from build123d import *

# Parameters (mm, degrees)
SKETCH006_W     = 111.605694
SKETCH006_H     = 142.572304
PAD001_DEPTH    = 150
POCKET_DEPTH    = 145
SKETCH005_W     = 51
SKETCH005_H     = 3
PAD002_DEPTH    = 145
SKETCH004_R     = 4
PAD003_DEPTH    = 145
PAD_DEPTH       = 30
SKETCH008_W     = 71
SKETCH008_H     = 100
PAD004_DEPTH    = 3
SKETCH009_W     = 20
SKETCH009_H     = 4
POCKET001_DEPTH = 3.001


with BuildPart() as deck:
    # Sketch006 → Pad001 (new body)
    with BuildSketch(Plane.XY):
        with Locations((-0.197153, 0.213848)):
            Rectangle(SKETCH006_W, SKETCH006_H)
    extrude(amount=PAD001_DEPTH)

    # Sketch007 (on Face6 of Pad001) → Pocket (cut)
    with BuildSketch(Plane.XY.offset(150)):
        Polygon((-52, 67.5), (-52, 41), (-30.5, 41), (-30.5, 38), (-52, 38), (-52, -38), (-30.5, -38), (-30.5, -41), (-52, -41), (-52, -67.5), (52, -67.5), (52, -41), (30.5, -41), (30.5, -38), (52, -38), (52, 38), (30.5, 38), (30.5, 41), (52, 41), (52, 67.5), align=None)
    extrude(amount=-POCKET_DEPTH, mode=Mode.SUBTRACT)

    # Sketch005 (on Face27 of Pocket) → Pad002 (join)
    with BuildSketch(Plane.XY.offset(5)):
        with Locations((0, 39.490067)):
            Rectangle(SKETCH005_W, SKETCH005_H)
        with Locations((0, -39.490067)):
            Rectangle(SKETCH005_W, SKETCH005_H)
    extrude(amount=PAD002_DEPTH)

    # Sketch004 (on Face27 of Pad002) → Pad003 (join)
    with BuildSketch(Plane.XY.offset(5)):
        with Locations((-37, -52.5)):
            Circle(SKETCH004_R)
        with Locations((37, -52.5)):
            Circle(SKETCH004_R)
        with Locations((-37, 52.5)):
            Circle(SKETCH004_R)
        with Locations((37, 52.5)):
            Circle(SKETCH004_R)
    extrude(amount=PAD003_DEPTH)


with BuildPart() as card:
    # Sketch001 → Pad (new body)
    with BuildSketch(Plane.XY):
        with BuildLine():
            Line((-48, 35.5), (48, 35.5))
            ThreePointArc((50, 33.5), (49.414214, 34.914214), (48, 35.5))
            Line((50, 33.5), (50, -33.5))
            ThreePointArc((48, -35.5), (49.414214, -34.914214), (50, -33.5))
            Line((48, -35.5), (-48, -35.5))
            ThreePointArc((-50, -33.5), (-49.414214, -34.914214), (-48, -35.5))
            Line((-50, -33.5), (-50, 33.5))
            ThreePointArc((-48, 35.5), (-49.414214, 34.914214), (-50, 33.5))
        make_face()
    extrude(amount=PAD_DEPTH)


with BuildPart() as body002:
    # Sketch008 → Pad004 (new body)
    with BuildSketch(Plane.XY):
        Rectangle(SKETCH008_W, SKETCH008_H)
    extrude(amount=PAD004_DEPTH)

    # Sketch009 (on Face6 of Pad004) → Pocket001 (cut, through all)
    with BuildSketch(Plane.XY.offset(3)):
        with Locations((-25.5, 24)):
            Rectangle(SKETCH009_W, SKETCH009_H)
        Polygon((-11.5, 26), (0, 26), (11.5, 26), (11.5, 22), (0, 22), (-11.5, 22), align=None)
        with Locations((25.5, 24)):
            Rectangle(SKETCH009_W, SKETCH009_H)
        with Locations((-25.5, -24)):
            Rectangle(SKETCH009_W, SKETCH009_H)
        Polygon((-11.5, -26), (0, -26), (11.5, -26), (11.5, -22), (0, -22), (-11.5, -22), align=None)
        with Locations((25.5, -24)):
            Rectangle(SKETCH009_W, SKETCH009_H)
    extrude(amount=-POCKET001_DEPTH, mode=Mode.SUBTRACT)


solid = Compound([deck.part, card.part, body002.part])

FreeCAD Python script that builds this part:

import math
import FreeCAD as App
import Part
import Sketcher
Q = App.Units.Quantity

doc = App.newDocument("Part")
body = doc.addObject("PartDesign::Body", "Body")

# Sketch on XY plane
sketch1 = doc.addObject("Sketcher::SketchObject", "Sketch")
body.addObject(sketch1)
sketch1.AttachmentSupport = (doc.XY_Plane, [""])
sketch1.MapMode = "FlatFace"
sketch1.addGeometry([
    Part.LineSegment(App.Vector(-56, 71.5, 0), App.Vector(-56, -71.072304, 0)),
    Part.LineSegment(App.Vector(-56, -71.072304, 0), App.Vector(55.605694, -71.072304, 0)),
    Part.LineSegment(App.Vector(55.605694, -71.072304, 0), App.Vector(55.605694, 71.5, 0)),
    Part.LineSegment(App.Vector(55.605694, 71.5, 0), App.Vector(-56, 71.5, 0)),
], False)
sketch1.addConstraint([
    Sketcher.Constraint("Coincident", 0, 2, 1, 1),
    Sketcher.Constraint("Coincident", 1, 2, 2, 1),
    Sketcher.Constraint("Coincident", 2, 2, 3, 1),
    Sketcher.Constraint("Coincident", 3, 2, 0, 1),
    Sketcher.Constraint("Vertical", 0),
    Sketcher.Constraint("Horizontal", 1),
    Sketcher.Constraint("Vertical", 2),
    Sketcher.Constraint("Horizontal", 3),
    Sketcher.Constraint("DistanceX", 0, 2, -1, 1, Q("56 mm")),
    Sketcher.Constraint("DistanceY", -1, 1, 2, 2, Q("71.5 mm")),
    Sketcher.Constraint("DistanceX", 1, 1, 1, 2, Q("111.605694 mm")),
    Sketcher.Constraint("DistanceY", 0, 2, 0, 1, Q("142.572304 mm")),
])
pad1 = doc.addObject("PartDesign::Pad", "Pad")
body.addObject(pad1)
pad1.Profile = sketch1
pad1.Length = 150

# Sketch on XY plane
sketch2 = doc.addObject("Sketcher::SketchObject", "Sketch001")
body.addObject(sketch2)
sketch2.AttachmentSupport = (doc.XY_Plane, [""])
sketch2.MapMode = "FlatFace"
sketch2.AttachmentOffset = App.Placement(App.Vector(0, 0, 150), App.Rotation())
sketch2.addGeometry([
    Part.LineSegment(App.Vector(-52, 67.5, 0), App.Vector(-52, 41, 0)),  # 0
    Part.LineSegment(App.Vector(-52, 41, 0), App.Vector(-30.5, 41, 0)),  # 1
    Part.LineSegment(App.Vector(-30.5, 41, 0), App.Vector(-30.5, 38, 0)),  # 2
    Part.LineSegment(App.Vector(-30.5, 38, 0), App.Vector(-52, 38, 0)),  # 3
    Part.LineSegment(App.Vector(-52, 38, 0), App.Vector(-52, -38, 0)),  # 4
    Part.LineSegment(App.Vector(-52, -38, 0), App.Vector(-30.5, -38, 0)),  # 5
    Part.LineSegment(App.Vector(-30.5, -38, 0), App.Vector(-30.5, -41, 0)),  # 6
    Part.LineSegment(App.Vector(-30.5, -41, 0), App.Vector(-52, -41, 0)),  # 7
    Part.LineSegment(App.Vector(-52, -41, 0), App.Vector(-52, -67.5, 0)),  # 8
    Part.LineSegment(App.Vector(-52, -67.5, 0), App.Vector(52, -67.5, 0)),  # 9
    Part.LineSegment(App.Vector(52, -67.5, 0), App.Vector(52, -41, 0)),  # 10
    Part.LineSegment(App.Vector(52, -41, 0), App.Vector(30.5, -41, 0)),  # 11
    Part.LineSegment(App.Vector(30.5, -41, 0), App.Vector(30.5, -38, 0)),  # 12
    Part.LineSegment(App.Vector(30.5, -38, 0), App.Vector(52, -38, 0)),  # 13
    Part.LineSegment(App.Vector(52, -38, 0), App.Vector(52, 38, 0)),  # 14
    Part.LineSegment(App.Vector(52, 38, 0), App.Vector(30.5, 38, 0)),  # 15
    Part.LineSegment(App.Vector(30.5, 38, 0), App.Vector(30.5, 41, 0)),  # 16
    Part.LineSegment(App.Vector(30.5, 41, 0), App.Vector(52, 41, 0)),  # 17
    Part.LineSegment(App.Vector(52, 41, 0), App.Vector(52, 67.5, 0)),  # 18
    Part.LineSegment(App.Vector(52, 67.5, 0), App.Vector(-52, 67.5, 0)),  # 19
], False)
sketch2.addConstraint([
    Sketcher.Constraint("Coincident", 0, 2, 1, 1),
    Sketcher.Constraint("Coincident", 1, 2, 2, 1),
    Sketcher.Constraint("Coincident", 2, 2, 3, 1),
    Sketcher.Constraint("Coincident", 3, 2, 4, 1),
    Sketcher.Constraint("Coincident", 4, 2, 5, 1),
    Sketcher.Constraint("Coincident", 5, 2, 6, 1),
    Sketcher.Constraint("Coincident", 6, 2, 7, 1),
    Sketcher.Constraint("Coincident", 7, 2, 8, 1),
    Sketcher.Constraint("Coincident", 8, 2, 9, 1),
    Sketcher.Constraint("Coincident", 9, 2, 10, 1),
    Sketcher.Constraint("Coincident", 10, 2, 11, 1),
    Sketcher.Constraint("Coincident", 11, 2, 12, 1),
    Sketcher.Constraint("Coincident", 12, 2, 13, 1),
    Sketcher.Constraint("Coincident", 13, 2, 14, 1),
    Sketcher.Constraint("Coincident", 14, 2, 15, 1),
    Sketcher.Constraint("Coincident", 15, 2, 16, 1),
    Sketcher.Constraint("Coincident", 16, 2, 17, 1),
    Sketcher.Constraint("Coincident", 17, 2, 18, 1),
    Sketcher.Constraint("Coincident", 18, 2, 19, 1),
    Sketcher.Constraint("Coincident", 19, 2, 0, 1),
    Sketcher.Constraint("Vertical", 0),
    Sketcher.Constraint("Horizontal", 1),
    Sketcher.Constraint("Vertical", 2),
    Sketcher.Constraint("Horizontal", 3),
    Sketcher.Constraint("Vertical", 4),
    Sketcher.Constraint("Horizontal", 5),
    Sketcher.Constraint("Vertical", 6),
    Sketcher.Constraint("Horizontal", 7),
    Sketcher.Constraint("Vertical", 8),
    Sketcher.Constraint("Horizontal", 9),
    Sketcher.Constraint("Vertical", 10),
    Sketcher.Constraint("Horizontal", 11),
    Sketcher.Constraint("Vertical", 12),
    Sketcher.Constraint("Horizontal", 13),
    Sketcher.Constraint("Vertical", 14),
    Sketcher.Constraint("Horizontal", 15),
    Sketcher.Constraint("Vertical", 16),
    Sketcher.Constraint("Horizontal", 17),
    Sketcher.Constraint("Vertical", 18),
    Sketcher.Constraint("Horizontal", 19),
    Sketcher.Constraint("Symmetric", 0, 2, 10, 2, -1, 1),
    Sketcher.Constraint("Symmetric", 2, 2, 12, 2, -1, 1),
    Sketcher.Constraint("Symmetric", 4, 2, 14, 2, -1, 1),
    Sketcher.Constraint("Symmetric", 6, 2, 16, 2, -1, 1),
    Sketcher.Constraint("Symmetric", 8, 2, 18, 2, -1, 1),
    Sketcher.Constraint("Symmetric", 7, 2, 10, 2, -2),
    Sketcher.Constraint("Symmetric", 5, 2, 12, 2, -2),
    Sketcher.Constraint("Vertical", 0, 2, 3, 2),
    Sketcher.Constraint("DistanceX", 9, 1, 9, 2, Q("104 mm")),
    Sketcher.Constraint("DistanceY", 2, 2, 2, 1, Q("3 mm")),
    Sketcher.Constraint("DistanceY", 4, 2, 4, 1, Q("76 mm")),
    Sketcher.Constraint("DistanceX", 1, 1, 1, 2, Q("21.5 mm")),
    Sketcher.Constraint("DistanceY", 0, 2, 0, 1, Q("26.5 mm")),
])
pocket1 = doc.addObject("PartDesign::Pocket", "Pocket")
body.addObject(pocket1)
pocket1.Profile = sketch2
pocket1.Length = 145

# Sketch on XY plane
sketch3 = doc.addObject("Sketcher::SketchObject", "Sketch002")
body.addObject(sketch3)
sketch3.AttachmentSupport = (doc.XY_Plane, [""])
sketch3.MapMode = "FlatFace"
sketch3.AttachmentOffset = App.Placement(App.Vector(0, 0, 5), App.Rotation())
sketch3.addGeometry([
    Part.LineSegment(App.Vector(-25.5, 40.990067, 0), App.Vector(-25.5, 37.990067, 0)),  # 0
    Part.LineSegment(App.Vector(-25.5, 37.990067, 0), App.Vector(25.5, 37.990067, 0)),  # 1
    Part.LineSegment(App.Vector(25.5, 37.990067, 0), App.Vector(25.5, 40.990067, 0)),  # 2
    Part.LineSegment(App.Vector(25.5, 40.990067, 0), App.Vector(-25.5, 40.990067, 0)),  # 3
    Part.LineSegment(App.Vector(-25.5, -37.990067, 0), App.Vector(-25.5, -40.990067, 0)),  # 4
    Part.LineSegment(App.Vector(-25.5, -40.990067, 0), App.Vector(25.5, -40.990067, 0)),  # 5
    Part.LineSegment(App.Vector(25.5, -40.990067, 0), App.Vector(25.5, -37.990067, 0)),  # 6
    Part.LineSegment(App.Vector(25.5, -37.990067, 0), App.Vector(-25.5, -37.990067, 0)),  # 7
], False)
sketch3.addConstraint([
    Sketcher.Constraint("Coincident", 0, 2, 1, 1),
    Sketcher.Constraint("Coincident", 1, 2, 2, 1),
    Sketcher.Constraint("Coincident", 2, 2, 3, 1),
    Sketcher.Constraint("Coincident", 3, 2, 0, 1),
    Sketcher.Constraint("Coincident", 4, 2, 5, 1),
    Sketcher.Constraint("Coincident", 5, 2, 6, 1),
    Sketcher.Constraint("Coincident", 6, 2, 7, 1),
    Sketcher.Constraint("Coincident", 7, 2, 4, 1),
    Sketcher.Constraint("Vertical", 0),
    Sketcher.Constraint("Horizontal", 1),
    Sketcher.Constraint("Vertical", 2),
    Sketcher.Constraint("Horizontal", 3),
    Sketcher.Constraint("Vertical", 4),
    Sketcher.Constraint("Horizontal", 5),
    Sketcher.Constraint("Vertical", 6),
    Sketcher.Constraint("Horizontal", 7),
    Sketcher.Constraint("Symmetric", 2, 2, 4, 2, -1, 1),
    Sketcher.Constraint("Symmetric", 0, 2, 6, 2, -1, 1),
    Sketcher.Constraint("Vertical", 3, 2, 4, 2),
    Sketcher.Constraint("DistanceX", 1, 1, 1, 2, Q("51 mm")),
    Sketcher.Constraint("DistanceY", 0, 2, 0, 1, Q("3 mm")),
    Sketcher.Constraint("DistanceY", -1, 1, 0, 2, Q("37.990067 mm")),
])
pad2 = doc.addObject("PartDesign::Pad", "Pad001")
body.addObject(pad2)
pad2.Profile = sketch3
pad2.Length = 145

# Sketch on XY plane
sketch4 = doc.addObject("Sketcher::SketchObject", "Sketch003")
body.addObject(sketch4)
sketch4.AttachmentSupport = (doc.XY_Plane, [""])
sketch4.MapMode = "FlatFace"
sketch4.AttachmentOffset = App.Placement(App.Vector(0, 0, 5), App.Rotation())
sketch4.addGeometry([
    Part.Circle(App.Vector(-37, -52.5, 0), App.Vector(0, 0, 1), 4),
    Part.Circle(App.Vector(37, -52.5, 0), App.Vector(0, 0, 1), 4),
    Part.Circle(App.Vector(-37, 52.5, 0), App.Vector(0, 0, 1), 4),
    Part.Circle(App.Vector(37, 52.5, 0), App.Vector(0, 0, 1), 4),
], False)
sketch4.addConstraint([
    Sketcher.Constraint("Equal", 0, 1),
    Sketcher.Constraint("Equal", 1, 2),
    Sketcher.Constraint("Equal", 2, 3),
    Sketcher.Constraint("Symmetric", 1, 3, 2, 3, -1, 1),
    Sketcher.Constraint("Symmetric", 0, 3, 3, 3, -1, 1),
    Sketcher.Constraint("Symmetric", 0, 3, 1, 3, -2),
    Sketcher.Constraint("Diameter", 0, Q("8 mm")),
    Sketcher.Constraint("DistanceX", 0, 3, -1, 1, Q("37 mm")),
    Sketcher.Constraint("DistanceY", 0, 3, 2, 3, Q("105 mm")),
])
pad3 = doc.addObject("PartDesign::Pad", "Pad002")
body.addObject(pad3)
pad3.Profile = sketch4
pad3.Length = 145
body2 = doc.addObject("PartDesign::Body", "Body001")

# Sketch on XY plane
sketch5 = doc.addObject("Sketcher::SketchObject", "Sketch004")
body2.addObject(sketch5)
sketch5.AttachmentSupport = (doc.getObject("XY_Plane001"), [""])
sketch5.MapMode = "FlatFace"
sketch5.addGeometry([
    Part.LineSegment(App.Vector(48, 35.5, 0), App.Vector(-48, 35.5, 0)),  # 0
    Part.ArcOfCircle(Part.Circle(App.Vector(-48.000001, 33.500001, 0), App.Vector(0, 0, 1), 1.999999), math.radians(89.999957), math.radians(180.000043)),  # 1
    Part.LineSegment(App.Vector(-50, 33.5, 0), App.Vector(-50, -33.5, 0)),  # 2
    Part.ArcOfCircle(Part.Circle(App.Vector(-48.000001, -33.500001, 0), App.Vector(0, 0, 1), 1.999999), math.radians(179.999957), math.radians(270.000043)),  # 3
    Part.LineSegment(App.Vector(-48, -35.5, 0), App.Vector(48, -35.5, 0)),  # 4
    Part.ArcOfCircle(Part.Circle(App.Vector(48.000001, -33.500001, 0), App.Vector(0, 0, 1), 1.999999), math.radians(-90.000043), math.radians(0.000043)),  # 5
    Part.LineSegment(App.Vector(50, -33.5, 0), App.Vector(50, 33.5, 0)),  # 6
    Part.ArcOfCircle(Part.Circle(App.Vector(48.000001, 33.500001, 0), App.Vector(0, 0, 1), 1.999999), math.radians(-0.000043), math.radians(90.000043)),  # 7
], False)
sketch5.addConstraint([
    Sketcher.Constraint("Tangent", 0, 2, 1, 1),
    Sketcher.Constraint("Tangent", 1, 2, 2, 1),
    Sketcher.Constraint("Tangent", 2, 2, 3, 1),
    Sketcher.Constraint("Tangent", 3, 2, 4, 1),
    Sketcher.Constraint("Tangent", 4, 2, 5, 1),
    Sketcher.Constraint("Tangent", 5, 2, 6, 1),
    Sketcher.Constraint("Tangent", 6, 2, 7, 1),
    Sketcher.Constraint("Tangent", 7, 2, 0, 1),
    Sketcher.Constraint("Horizontal", 0),
    Sketcher.Constraint("Vertical", 2),
    Sketcher.Constraint("Horizontal", 4),
    Sketcher.Constraint("Vertical", 6),
    Sketcher.Constraint("Equal", 1, 3),
    Sketcher.Constraint("Equal", 3, 5),
    Sketcher.Constraint("Equal", 5, 7),
    Sketcher.Constraint("Symmetric", 1, 3, 5, 3, -1, 1),
    Sketcher.Constraint("Radius", 1, Q("1.999999 mm")),
    Sketcher.Constraint("DistanceX", 0, 2, 0, 1, Q("96 mm")),
    Sketcher.Constraint("DistanceY", 2, 2, 2, 1, Q("67 mm")),
])
pad4 = doc.addObject("PartDesign::Pad", "Pad003")
body2.addObject(pad4)
pad4.Profile = sketch5
pad4.Length = 30
body3 = doc.addObject("PartDesign::Body", "Body002")

# Sketch on XY plane
sketch6 = doc.addObject("Sketcher::SketchObject", "Sketch005")
body3.addObject(sketch6)
sketch6.AttachmentSupport = (doc.getObject("XY_Plane002"), [""])
sketch6.MapMode = "FlatFace"
sketch6.addGeometry([
    Part.LineSegment(App.Vector(-35.5, 50, 0), App.Vector(-35.5, -50, 0)),
    Part.LineSegment(App.Vector(-35.5, -50, 0), App.Vector(35.5, -50, 0)),
    Part.LineSegment(App.Vector(35.5, -50, 0), App.Vector(35.5, 50, 0)),
    Part.LineSegment(App.Vector(35.5, 50, 0), App.Vector(-35.5, 50, 0)),
], False)
sketch6.addConstraint([
    Sketcher.Constraint("Coincident", 0, 2, 1, 1),
    Sketcher.Constraint("Coincident", 1, 2, 2, 1),
    Sketcher.Constraint("Coincident", 2, 2, 3, 1),
    Sketcher.Constraint("Coincident", 3, 2, 0, 1),
    Sketcher.Constraint("Vertical", 0),
    Sketcher.Constraint("Horizontal", 1),
    Sketcher.Constraint("Vertical", 2),
    Sketcher.Constraint("Horizontal", 3),
    Sketcher.Constraint("Symmetric", 0, 2, 2, 2, -1, 1),
    Sketcher.Constraint("DistanceX", 1, 1, 1, 2, Q("71 mm")),
    Sketcher.Constraint("DistanceY", 0, 2, 0, 1, Q("100 mm")),
])
pad5 = doc.addObject("PartDesign::Pad", "Pad004")
body3.addObject(pad5)
pad5.Profile = sketch6
pad5.Length = 3

# Sketch on XY plane
sketch7 = doc.addObject("Sketcher::SketchObject", "Sketch006")
body3.addObject(sketch7)
sketch7.AttachmentSupport = (doc.getObject("XY_Plane002"), [""])
sketch7.MapMode = "FlatFace"
sketch7.AttachmentOffset = App.Placement(App.Vector(0, 0, 3), App.Rotation())
sketch7.addGeometry([
    Part.LineSegment(App.Vector(-35.5, 26, 0), App.Vector(-35.5, 22, 0)),  # 0
    Part.LineSegment(App.Vector(-35.5, 22, 0), App.Vector(-15.5, 22, 0)),  # 1
    Part.LineSegment(App.Vector(-15.5, 22, 0), App.Vector(-15.5, 26, 0)),  # 2
    Part.LineSegment(App.Vector(-15.5, 26, 0), App.Vector(-35.5, 26, 0)),  # 3
    Part.LineSegment(App.Vector(11.5, 26, 0), App.Vector(-11.5, 26, 0)),  # 4
    Part.LineSegment(App.Vector(-11.5, 26, 0), App.Vector(-11.5, 22, 0)),  # 5
    Part.LineSegment(App.Vector(-11.5, 22, 0), App.Vector(11.5, 22, 0)),  # 6
    Part.LineSegment(App.Vector(11.5, 22, 0), App.Vector(11.5, 26, 0)),  # 7
    Part.LineSegment(App.Vector(15.5, 26, 0), App.Vector(15.5, 22, 0)),  # 8
    Part.LineSegment(App.Vector(15.5, 22, 0), App.Vector(35.5, 22, 0)),  # 9
    Part.LineSegment(App.Vector(35.5, 22, 0), App.Vector(35.5, 26, 0)),  # 10
    Part.LineSegment(App.Vector(35.5, 26, 0), App.Vector(15.5, 26, 0)),  # 11
    Part.LineSegment(App.Vector(-35.5, -22, 0), App.Vector(-35.5, -26, 0)),  # 12
    Part.LineSegment(App.Vector(-35.5, -26, 0), App.Vector(-15.5, -26, 0)),  # 13
    Part.LineSegment(App.Vector(-15.5, -26, 0), App.Vector(-15.5, -22, 0)),  # 14
    Part.LineSegment(App.Vector(-15.5, -22, 0), App.Vector(-35.5, -22, 0)),  # 15
    Part.LineSegment(App.Vector(-11.5, -26, 0), App.Vector(11.5, -26, 0)),  # 16
    Part.LineSegment(App.Vector(11.5, -26, 0), App.Vector(11.5, -22, 0)),  # 17
    Part.LineSegment(App.Vector(11.5, -22, 0), App.Vector(-11.5, -22, 0)),  # 18
    Part.LineSegment(App.Vector(-11.5, -22, 0), App.Vector(-11.5, -26, 0)),  # 19
    Part.LineSegment(App.Vector(15.5, -22, 0), App.Vector(15.5, -26, 0)),  # 20
    Part.LineSegment(App.Vector(15.5, -26, 0), App.Vector(35.5, -26, 0)),  # 21
    Part.LineSegment(App.Vector(35.5, -26, 0), App.Vector(35.5, -22, 0)),  # 22
    Part.LineSegment(App.Vector(35.5, -22, 0), App.Vector(15.5, -22, 0)),  # 23
], False)
sketch7.addConstraint([
    Sketcher.Constraint("Coincident", 0, 2, 1, 1),
    Sketcher.Constraint("Coincident", 1, 2, 2, 1),
    Sketcher.Constraint("Coincident", 2, 2, 3, 1),
    Sketcher.Constraint("Coincident", 3, 2, 0, 1),
    Sketcher.Constraint("Coincident", 4, 2, 5, 1),
    Sketcher.Constraint("Coincident", 5, 2, 6, 1),
    Sketcher.Constraint("Coincident", 6, 2, 7, 1),
    Sketcher.Constraint("Coincident", 7, 2, 4, 1),
    Sketcher.Constraint("Coincident", 8, 2, 9, 1),
    Sketcher.Constraint("Coincident", 9, 2, 10, 1),
    Sketcher.Constraint("Coincident", 10, 2, 11, 1),
    Sketcher.Constraint("Coincident", 11, 2, 8, 1),
    Sketcher.Constraint("Coincident", 12, 2, 13, 1),
    Sketcher.Constraint("Coincident", 13, 2, 14, 1),
    Sketcher.Constraint("Coincident", 14, 2, 15, 1),
    Sketcher.Constraint("Coincident", 15, 2, 12, 1),
    Sketcher.Constraint("Coincident", 16, 2, 17, 1),
    Sketcher.Constraint("Coincident", 17, 2, 18, 1),
    Sketcher.Constraint("Coincident", 18, 2, 19, 1),
    Sketcher.Constraint("Coincident", 19, 2, 16, 1),
    Sketcher.Constraint("Coincident", 20, 2, 21, 1),
    Sketcher.Constraint("Coincident", 21, 2, 22, 1),
    Sketcher.Constraint("Coincident", 22, 2, 23, 1),
    Sketcher.Constraint("Coincident", 23, 2, 20, 1),
    Sketcher.Constraint("Vertical", 0),
    Sketcher.Constraint("Horizontal", 1),
    Sketcher.Constraint("Vertical", 2),
    Sketcher.Constraint("Horizontal", 3),
    Sketcher.Constraint("Horizontal", 4),
    Sketcher.Constraint("Vertical", 5),
    Sketcher.Constraint("Horizontal", 6),
    Sketcher.Constraint("Vertical", 7),
    Sketcher.Constraint("Vertical", 8),
    Sketcher.Constraint("Horizontal", 9),
    Sketcher.Constraint("Vertical", 10),
    Sketcher.Constraint("Horizontal", 11),
    Sketcher.Constraint("Vertical", 12),
    Sketcher.Constraint("Horizontal", 13),
    Sketcher.Constraint("Vertical", 14),
    Sketcher.Constraint("Horizontal", 15),
    Sketcher.Constraint("Horizontal", 16),
    Sketcher.Constraint("Vertical", 17),
    Sketcher.Constraint("Horizontal", 18),
    Sketcher.Constraint("Vertical", 19),
    Sketcher.Constraint("Vertical", 20),
    Sketcher.Constraint("Horizontal", 21),
    Sketcher.Constraint("Vertical", 22),
    Sketcher.Constraint("Horizontal", 23),
    Sketcher.Constraint("Symmetric", 10, 2, 12, 2, -1, 1),
    Sketcher.Constraint("Symmetric", 8, 2, 14, 2, -1, 1),
    Sketcher.Constraint("Symmetric", 4, 2, 16, 2, -1, 1),
    Sketcher.Constraint("Symmetric", 6, 2, 18, 2, -1, 1),
    Sketcher.Constraint("Symmetric", 2, 2, 20, 2, -1, 1),
    Sketcher.Constraint("Symmetric", 0, 2, 22, 2, -1, 1),
    Sketcher.Constraint("Symmetric", 1, 2, 8, 2, -2),
    Sketcher.Constraint("Symmetric", 3, 2, 10, 2, -2),
    Sketcher.Constraint("Horizontal", 3, 2, 4, 2),
    Sketcher.Constraint("Horizontal", 1, 2, 5, 2),
    Sketcher.Constraint("Vertical", 7, 2, 16, 2),
    Sketcher.Constraint("DistanceX", 1, 1, 1, 2, Q("20 mm")),
    Sketcher.Constraint("DistanceX", 4, 2, 4, 1, Q("23 mm")),
    Sketcher.Constraint("DistanceY", 0, 2, 0, 1, Q("4 mm")),
    Sketcher.Constraint("DistanceY", -1, 1, 0, 2, Q("22 mm")),
    Sketcher.Constraint("DistanceX", 2, 2, 4, 2, Q("4 mm")),
])
pocket2 = doc.addObject("PartDesign::Pocket", "Pocket001")
body3.addObject(pocket2)
pocket2.Profile = sketch7
pocket2.Type = "ThroughAll"

doc.recompute()
